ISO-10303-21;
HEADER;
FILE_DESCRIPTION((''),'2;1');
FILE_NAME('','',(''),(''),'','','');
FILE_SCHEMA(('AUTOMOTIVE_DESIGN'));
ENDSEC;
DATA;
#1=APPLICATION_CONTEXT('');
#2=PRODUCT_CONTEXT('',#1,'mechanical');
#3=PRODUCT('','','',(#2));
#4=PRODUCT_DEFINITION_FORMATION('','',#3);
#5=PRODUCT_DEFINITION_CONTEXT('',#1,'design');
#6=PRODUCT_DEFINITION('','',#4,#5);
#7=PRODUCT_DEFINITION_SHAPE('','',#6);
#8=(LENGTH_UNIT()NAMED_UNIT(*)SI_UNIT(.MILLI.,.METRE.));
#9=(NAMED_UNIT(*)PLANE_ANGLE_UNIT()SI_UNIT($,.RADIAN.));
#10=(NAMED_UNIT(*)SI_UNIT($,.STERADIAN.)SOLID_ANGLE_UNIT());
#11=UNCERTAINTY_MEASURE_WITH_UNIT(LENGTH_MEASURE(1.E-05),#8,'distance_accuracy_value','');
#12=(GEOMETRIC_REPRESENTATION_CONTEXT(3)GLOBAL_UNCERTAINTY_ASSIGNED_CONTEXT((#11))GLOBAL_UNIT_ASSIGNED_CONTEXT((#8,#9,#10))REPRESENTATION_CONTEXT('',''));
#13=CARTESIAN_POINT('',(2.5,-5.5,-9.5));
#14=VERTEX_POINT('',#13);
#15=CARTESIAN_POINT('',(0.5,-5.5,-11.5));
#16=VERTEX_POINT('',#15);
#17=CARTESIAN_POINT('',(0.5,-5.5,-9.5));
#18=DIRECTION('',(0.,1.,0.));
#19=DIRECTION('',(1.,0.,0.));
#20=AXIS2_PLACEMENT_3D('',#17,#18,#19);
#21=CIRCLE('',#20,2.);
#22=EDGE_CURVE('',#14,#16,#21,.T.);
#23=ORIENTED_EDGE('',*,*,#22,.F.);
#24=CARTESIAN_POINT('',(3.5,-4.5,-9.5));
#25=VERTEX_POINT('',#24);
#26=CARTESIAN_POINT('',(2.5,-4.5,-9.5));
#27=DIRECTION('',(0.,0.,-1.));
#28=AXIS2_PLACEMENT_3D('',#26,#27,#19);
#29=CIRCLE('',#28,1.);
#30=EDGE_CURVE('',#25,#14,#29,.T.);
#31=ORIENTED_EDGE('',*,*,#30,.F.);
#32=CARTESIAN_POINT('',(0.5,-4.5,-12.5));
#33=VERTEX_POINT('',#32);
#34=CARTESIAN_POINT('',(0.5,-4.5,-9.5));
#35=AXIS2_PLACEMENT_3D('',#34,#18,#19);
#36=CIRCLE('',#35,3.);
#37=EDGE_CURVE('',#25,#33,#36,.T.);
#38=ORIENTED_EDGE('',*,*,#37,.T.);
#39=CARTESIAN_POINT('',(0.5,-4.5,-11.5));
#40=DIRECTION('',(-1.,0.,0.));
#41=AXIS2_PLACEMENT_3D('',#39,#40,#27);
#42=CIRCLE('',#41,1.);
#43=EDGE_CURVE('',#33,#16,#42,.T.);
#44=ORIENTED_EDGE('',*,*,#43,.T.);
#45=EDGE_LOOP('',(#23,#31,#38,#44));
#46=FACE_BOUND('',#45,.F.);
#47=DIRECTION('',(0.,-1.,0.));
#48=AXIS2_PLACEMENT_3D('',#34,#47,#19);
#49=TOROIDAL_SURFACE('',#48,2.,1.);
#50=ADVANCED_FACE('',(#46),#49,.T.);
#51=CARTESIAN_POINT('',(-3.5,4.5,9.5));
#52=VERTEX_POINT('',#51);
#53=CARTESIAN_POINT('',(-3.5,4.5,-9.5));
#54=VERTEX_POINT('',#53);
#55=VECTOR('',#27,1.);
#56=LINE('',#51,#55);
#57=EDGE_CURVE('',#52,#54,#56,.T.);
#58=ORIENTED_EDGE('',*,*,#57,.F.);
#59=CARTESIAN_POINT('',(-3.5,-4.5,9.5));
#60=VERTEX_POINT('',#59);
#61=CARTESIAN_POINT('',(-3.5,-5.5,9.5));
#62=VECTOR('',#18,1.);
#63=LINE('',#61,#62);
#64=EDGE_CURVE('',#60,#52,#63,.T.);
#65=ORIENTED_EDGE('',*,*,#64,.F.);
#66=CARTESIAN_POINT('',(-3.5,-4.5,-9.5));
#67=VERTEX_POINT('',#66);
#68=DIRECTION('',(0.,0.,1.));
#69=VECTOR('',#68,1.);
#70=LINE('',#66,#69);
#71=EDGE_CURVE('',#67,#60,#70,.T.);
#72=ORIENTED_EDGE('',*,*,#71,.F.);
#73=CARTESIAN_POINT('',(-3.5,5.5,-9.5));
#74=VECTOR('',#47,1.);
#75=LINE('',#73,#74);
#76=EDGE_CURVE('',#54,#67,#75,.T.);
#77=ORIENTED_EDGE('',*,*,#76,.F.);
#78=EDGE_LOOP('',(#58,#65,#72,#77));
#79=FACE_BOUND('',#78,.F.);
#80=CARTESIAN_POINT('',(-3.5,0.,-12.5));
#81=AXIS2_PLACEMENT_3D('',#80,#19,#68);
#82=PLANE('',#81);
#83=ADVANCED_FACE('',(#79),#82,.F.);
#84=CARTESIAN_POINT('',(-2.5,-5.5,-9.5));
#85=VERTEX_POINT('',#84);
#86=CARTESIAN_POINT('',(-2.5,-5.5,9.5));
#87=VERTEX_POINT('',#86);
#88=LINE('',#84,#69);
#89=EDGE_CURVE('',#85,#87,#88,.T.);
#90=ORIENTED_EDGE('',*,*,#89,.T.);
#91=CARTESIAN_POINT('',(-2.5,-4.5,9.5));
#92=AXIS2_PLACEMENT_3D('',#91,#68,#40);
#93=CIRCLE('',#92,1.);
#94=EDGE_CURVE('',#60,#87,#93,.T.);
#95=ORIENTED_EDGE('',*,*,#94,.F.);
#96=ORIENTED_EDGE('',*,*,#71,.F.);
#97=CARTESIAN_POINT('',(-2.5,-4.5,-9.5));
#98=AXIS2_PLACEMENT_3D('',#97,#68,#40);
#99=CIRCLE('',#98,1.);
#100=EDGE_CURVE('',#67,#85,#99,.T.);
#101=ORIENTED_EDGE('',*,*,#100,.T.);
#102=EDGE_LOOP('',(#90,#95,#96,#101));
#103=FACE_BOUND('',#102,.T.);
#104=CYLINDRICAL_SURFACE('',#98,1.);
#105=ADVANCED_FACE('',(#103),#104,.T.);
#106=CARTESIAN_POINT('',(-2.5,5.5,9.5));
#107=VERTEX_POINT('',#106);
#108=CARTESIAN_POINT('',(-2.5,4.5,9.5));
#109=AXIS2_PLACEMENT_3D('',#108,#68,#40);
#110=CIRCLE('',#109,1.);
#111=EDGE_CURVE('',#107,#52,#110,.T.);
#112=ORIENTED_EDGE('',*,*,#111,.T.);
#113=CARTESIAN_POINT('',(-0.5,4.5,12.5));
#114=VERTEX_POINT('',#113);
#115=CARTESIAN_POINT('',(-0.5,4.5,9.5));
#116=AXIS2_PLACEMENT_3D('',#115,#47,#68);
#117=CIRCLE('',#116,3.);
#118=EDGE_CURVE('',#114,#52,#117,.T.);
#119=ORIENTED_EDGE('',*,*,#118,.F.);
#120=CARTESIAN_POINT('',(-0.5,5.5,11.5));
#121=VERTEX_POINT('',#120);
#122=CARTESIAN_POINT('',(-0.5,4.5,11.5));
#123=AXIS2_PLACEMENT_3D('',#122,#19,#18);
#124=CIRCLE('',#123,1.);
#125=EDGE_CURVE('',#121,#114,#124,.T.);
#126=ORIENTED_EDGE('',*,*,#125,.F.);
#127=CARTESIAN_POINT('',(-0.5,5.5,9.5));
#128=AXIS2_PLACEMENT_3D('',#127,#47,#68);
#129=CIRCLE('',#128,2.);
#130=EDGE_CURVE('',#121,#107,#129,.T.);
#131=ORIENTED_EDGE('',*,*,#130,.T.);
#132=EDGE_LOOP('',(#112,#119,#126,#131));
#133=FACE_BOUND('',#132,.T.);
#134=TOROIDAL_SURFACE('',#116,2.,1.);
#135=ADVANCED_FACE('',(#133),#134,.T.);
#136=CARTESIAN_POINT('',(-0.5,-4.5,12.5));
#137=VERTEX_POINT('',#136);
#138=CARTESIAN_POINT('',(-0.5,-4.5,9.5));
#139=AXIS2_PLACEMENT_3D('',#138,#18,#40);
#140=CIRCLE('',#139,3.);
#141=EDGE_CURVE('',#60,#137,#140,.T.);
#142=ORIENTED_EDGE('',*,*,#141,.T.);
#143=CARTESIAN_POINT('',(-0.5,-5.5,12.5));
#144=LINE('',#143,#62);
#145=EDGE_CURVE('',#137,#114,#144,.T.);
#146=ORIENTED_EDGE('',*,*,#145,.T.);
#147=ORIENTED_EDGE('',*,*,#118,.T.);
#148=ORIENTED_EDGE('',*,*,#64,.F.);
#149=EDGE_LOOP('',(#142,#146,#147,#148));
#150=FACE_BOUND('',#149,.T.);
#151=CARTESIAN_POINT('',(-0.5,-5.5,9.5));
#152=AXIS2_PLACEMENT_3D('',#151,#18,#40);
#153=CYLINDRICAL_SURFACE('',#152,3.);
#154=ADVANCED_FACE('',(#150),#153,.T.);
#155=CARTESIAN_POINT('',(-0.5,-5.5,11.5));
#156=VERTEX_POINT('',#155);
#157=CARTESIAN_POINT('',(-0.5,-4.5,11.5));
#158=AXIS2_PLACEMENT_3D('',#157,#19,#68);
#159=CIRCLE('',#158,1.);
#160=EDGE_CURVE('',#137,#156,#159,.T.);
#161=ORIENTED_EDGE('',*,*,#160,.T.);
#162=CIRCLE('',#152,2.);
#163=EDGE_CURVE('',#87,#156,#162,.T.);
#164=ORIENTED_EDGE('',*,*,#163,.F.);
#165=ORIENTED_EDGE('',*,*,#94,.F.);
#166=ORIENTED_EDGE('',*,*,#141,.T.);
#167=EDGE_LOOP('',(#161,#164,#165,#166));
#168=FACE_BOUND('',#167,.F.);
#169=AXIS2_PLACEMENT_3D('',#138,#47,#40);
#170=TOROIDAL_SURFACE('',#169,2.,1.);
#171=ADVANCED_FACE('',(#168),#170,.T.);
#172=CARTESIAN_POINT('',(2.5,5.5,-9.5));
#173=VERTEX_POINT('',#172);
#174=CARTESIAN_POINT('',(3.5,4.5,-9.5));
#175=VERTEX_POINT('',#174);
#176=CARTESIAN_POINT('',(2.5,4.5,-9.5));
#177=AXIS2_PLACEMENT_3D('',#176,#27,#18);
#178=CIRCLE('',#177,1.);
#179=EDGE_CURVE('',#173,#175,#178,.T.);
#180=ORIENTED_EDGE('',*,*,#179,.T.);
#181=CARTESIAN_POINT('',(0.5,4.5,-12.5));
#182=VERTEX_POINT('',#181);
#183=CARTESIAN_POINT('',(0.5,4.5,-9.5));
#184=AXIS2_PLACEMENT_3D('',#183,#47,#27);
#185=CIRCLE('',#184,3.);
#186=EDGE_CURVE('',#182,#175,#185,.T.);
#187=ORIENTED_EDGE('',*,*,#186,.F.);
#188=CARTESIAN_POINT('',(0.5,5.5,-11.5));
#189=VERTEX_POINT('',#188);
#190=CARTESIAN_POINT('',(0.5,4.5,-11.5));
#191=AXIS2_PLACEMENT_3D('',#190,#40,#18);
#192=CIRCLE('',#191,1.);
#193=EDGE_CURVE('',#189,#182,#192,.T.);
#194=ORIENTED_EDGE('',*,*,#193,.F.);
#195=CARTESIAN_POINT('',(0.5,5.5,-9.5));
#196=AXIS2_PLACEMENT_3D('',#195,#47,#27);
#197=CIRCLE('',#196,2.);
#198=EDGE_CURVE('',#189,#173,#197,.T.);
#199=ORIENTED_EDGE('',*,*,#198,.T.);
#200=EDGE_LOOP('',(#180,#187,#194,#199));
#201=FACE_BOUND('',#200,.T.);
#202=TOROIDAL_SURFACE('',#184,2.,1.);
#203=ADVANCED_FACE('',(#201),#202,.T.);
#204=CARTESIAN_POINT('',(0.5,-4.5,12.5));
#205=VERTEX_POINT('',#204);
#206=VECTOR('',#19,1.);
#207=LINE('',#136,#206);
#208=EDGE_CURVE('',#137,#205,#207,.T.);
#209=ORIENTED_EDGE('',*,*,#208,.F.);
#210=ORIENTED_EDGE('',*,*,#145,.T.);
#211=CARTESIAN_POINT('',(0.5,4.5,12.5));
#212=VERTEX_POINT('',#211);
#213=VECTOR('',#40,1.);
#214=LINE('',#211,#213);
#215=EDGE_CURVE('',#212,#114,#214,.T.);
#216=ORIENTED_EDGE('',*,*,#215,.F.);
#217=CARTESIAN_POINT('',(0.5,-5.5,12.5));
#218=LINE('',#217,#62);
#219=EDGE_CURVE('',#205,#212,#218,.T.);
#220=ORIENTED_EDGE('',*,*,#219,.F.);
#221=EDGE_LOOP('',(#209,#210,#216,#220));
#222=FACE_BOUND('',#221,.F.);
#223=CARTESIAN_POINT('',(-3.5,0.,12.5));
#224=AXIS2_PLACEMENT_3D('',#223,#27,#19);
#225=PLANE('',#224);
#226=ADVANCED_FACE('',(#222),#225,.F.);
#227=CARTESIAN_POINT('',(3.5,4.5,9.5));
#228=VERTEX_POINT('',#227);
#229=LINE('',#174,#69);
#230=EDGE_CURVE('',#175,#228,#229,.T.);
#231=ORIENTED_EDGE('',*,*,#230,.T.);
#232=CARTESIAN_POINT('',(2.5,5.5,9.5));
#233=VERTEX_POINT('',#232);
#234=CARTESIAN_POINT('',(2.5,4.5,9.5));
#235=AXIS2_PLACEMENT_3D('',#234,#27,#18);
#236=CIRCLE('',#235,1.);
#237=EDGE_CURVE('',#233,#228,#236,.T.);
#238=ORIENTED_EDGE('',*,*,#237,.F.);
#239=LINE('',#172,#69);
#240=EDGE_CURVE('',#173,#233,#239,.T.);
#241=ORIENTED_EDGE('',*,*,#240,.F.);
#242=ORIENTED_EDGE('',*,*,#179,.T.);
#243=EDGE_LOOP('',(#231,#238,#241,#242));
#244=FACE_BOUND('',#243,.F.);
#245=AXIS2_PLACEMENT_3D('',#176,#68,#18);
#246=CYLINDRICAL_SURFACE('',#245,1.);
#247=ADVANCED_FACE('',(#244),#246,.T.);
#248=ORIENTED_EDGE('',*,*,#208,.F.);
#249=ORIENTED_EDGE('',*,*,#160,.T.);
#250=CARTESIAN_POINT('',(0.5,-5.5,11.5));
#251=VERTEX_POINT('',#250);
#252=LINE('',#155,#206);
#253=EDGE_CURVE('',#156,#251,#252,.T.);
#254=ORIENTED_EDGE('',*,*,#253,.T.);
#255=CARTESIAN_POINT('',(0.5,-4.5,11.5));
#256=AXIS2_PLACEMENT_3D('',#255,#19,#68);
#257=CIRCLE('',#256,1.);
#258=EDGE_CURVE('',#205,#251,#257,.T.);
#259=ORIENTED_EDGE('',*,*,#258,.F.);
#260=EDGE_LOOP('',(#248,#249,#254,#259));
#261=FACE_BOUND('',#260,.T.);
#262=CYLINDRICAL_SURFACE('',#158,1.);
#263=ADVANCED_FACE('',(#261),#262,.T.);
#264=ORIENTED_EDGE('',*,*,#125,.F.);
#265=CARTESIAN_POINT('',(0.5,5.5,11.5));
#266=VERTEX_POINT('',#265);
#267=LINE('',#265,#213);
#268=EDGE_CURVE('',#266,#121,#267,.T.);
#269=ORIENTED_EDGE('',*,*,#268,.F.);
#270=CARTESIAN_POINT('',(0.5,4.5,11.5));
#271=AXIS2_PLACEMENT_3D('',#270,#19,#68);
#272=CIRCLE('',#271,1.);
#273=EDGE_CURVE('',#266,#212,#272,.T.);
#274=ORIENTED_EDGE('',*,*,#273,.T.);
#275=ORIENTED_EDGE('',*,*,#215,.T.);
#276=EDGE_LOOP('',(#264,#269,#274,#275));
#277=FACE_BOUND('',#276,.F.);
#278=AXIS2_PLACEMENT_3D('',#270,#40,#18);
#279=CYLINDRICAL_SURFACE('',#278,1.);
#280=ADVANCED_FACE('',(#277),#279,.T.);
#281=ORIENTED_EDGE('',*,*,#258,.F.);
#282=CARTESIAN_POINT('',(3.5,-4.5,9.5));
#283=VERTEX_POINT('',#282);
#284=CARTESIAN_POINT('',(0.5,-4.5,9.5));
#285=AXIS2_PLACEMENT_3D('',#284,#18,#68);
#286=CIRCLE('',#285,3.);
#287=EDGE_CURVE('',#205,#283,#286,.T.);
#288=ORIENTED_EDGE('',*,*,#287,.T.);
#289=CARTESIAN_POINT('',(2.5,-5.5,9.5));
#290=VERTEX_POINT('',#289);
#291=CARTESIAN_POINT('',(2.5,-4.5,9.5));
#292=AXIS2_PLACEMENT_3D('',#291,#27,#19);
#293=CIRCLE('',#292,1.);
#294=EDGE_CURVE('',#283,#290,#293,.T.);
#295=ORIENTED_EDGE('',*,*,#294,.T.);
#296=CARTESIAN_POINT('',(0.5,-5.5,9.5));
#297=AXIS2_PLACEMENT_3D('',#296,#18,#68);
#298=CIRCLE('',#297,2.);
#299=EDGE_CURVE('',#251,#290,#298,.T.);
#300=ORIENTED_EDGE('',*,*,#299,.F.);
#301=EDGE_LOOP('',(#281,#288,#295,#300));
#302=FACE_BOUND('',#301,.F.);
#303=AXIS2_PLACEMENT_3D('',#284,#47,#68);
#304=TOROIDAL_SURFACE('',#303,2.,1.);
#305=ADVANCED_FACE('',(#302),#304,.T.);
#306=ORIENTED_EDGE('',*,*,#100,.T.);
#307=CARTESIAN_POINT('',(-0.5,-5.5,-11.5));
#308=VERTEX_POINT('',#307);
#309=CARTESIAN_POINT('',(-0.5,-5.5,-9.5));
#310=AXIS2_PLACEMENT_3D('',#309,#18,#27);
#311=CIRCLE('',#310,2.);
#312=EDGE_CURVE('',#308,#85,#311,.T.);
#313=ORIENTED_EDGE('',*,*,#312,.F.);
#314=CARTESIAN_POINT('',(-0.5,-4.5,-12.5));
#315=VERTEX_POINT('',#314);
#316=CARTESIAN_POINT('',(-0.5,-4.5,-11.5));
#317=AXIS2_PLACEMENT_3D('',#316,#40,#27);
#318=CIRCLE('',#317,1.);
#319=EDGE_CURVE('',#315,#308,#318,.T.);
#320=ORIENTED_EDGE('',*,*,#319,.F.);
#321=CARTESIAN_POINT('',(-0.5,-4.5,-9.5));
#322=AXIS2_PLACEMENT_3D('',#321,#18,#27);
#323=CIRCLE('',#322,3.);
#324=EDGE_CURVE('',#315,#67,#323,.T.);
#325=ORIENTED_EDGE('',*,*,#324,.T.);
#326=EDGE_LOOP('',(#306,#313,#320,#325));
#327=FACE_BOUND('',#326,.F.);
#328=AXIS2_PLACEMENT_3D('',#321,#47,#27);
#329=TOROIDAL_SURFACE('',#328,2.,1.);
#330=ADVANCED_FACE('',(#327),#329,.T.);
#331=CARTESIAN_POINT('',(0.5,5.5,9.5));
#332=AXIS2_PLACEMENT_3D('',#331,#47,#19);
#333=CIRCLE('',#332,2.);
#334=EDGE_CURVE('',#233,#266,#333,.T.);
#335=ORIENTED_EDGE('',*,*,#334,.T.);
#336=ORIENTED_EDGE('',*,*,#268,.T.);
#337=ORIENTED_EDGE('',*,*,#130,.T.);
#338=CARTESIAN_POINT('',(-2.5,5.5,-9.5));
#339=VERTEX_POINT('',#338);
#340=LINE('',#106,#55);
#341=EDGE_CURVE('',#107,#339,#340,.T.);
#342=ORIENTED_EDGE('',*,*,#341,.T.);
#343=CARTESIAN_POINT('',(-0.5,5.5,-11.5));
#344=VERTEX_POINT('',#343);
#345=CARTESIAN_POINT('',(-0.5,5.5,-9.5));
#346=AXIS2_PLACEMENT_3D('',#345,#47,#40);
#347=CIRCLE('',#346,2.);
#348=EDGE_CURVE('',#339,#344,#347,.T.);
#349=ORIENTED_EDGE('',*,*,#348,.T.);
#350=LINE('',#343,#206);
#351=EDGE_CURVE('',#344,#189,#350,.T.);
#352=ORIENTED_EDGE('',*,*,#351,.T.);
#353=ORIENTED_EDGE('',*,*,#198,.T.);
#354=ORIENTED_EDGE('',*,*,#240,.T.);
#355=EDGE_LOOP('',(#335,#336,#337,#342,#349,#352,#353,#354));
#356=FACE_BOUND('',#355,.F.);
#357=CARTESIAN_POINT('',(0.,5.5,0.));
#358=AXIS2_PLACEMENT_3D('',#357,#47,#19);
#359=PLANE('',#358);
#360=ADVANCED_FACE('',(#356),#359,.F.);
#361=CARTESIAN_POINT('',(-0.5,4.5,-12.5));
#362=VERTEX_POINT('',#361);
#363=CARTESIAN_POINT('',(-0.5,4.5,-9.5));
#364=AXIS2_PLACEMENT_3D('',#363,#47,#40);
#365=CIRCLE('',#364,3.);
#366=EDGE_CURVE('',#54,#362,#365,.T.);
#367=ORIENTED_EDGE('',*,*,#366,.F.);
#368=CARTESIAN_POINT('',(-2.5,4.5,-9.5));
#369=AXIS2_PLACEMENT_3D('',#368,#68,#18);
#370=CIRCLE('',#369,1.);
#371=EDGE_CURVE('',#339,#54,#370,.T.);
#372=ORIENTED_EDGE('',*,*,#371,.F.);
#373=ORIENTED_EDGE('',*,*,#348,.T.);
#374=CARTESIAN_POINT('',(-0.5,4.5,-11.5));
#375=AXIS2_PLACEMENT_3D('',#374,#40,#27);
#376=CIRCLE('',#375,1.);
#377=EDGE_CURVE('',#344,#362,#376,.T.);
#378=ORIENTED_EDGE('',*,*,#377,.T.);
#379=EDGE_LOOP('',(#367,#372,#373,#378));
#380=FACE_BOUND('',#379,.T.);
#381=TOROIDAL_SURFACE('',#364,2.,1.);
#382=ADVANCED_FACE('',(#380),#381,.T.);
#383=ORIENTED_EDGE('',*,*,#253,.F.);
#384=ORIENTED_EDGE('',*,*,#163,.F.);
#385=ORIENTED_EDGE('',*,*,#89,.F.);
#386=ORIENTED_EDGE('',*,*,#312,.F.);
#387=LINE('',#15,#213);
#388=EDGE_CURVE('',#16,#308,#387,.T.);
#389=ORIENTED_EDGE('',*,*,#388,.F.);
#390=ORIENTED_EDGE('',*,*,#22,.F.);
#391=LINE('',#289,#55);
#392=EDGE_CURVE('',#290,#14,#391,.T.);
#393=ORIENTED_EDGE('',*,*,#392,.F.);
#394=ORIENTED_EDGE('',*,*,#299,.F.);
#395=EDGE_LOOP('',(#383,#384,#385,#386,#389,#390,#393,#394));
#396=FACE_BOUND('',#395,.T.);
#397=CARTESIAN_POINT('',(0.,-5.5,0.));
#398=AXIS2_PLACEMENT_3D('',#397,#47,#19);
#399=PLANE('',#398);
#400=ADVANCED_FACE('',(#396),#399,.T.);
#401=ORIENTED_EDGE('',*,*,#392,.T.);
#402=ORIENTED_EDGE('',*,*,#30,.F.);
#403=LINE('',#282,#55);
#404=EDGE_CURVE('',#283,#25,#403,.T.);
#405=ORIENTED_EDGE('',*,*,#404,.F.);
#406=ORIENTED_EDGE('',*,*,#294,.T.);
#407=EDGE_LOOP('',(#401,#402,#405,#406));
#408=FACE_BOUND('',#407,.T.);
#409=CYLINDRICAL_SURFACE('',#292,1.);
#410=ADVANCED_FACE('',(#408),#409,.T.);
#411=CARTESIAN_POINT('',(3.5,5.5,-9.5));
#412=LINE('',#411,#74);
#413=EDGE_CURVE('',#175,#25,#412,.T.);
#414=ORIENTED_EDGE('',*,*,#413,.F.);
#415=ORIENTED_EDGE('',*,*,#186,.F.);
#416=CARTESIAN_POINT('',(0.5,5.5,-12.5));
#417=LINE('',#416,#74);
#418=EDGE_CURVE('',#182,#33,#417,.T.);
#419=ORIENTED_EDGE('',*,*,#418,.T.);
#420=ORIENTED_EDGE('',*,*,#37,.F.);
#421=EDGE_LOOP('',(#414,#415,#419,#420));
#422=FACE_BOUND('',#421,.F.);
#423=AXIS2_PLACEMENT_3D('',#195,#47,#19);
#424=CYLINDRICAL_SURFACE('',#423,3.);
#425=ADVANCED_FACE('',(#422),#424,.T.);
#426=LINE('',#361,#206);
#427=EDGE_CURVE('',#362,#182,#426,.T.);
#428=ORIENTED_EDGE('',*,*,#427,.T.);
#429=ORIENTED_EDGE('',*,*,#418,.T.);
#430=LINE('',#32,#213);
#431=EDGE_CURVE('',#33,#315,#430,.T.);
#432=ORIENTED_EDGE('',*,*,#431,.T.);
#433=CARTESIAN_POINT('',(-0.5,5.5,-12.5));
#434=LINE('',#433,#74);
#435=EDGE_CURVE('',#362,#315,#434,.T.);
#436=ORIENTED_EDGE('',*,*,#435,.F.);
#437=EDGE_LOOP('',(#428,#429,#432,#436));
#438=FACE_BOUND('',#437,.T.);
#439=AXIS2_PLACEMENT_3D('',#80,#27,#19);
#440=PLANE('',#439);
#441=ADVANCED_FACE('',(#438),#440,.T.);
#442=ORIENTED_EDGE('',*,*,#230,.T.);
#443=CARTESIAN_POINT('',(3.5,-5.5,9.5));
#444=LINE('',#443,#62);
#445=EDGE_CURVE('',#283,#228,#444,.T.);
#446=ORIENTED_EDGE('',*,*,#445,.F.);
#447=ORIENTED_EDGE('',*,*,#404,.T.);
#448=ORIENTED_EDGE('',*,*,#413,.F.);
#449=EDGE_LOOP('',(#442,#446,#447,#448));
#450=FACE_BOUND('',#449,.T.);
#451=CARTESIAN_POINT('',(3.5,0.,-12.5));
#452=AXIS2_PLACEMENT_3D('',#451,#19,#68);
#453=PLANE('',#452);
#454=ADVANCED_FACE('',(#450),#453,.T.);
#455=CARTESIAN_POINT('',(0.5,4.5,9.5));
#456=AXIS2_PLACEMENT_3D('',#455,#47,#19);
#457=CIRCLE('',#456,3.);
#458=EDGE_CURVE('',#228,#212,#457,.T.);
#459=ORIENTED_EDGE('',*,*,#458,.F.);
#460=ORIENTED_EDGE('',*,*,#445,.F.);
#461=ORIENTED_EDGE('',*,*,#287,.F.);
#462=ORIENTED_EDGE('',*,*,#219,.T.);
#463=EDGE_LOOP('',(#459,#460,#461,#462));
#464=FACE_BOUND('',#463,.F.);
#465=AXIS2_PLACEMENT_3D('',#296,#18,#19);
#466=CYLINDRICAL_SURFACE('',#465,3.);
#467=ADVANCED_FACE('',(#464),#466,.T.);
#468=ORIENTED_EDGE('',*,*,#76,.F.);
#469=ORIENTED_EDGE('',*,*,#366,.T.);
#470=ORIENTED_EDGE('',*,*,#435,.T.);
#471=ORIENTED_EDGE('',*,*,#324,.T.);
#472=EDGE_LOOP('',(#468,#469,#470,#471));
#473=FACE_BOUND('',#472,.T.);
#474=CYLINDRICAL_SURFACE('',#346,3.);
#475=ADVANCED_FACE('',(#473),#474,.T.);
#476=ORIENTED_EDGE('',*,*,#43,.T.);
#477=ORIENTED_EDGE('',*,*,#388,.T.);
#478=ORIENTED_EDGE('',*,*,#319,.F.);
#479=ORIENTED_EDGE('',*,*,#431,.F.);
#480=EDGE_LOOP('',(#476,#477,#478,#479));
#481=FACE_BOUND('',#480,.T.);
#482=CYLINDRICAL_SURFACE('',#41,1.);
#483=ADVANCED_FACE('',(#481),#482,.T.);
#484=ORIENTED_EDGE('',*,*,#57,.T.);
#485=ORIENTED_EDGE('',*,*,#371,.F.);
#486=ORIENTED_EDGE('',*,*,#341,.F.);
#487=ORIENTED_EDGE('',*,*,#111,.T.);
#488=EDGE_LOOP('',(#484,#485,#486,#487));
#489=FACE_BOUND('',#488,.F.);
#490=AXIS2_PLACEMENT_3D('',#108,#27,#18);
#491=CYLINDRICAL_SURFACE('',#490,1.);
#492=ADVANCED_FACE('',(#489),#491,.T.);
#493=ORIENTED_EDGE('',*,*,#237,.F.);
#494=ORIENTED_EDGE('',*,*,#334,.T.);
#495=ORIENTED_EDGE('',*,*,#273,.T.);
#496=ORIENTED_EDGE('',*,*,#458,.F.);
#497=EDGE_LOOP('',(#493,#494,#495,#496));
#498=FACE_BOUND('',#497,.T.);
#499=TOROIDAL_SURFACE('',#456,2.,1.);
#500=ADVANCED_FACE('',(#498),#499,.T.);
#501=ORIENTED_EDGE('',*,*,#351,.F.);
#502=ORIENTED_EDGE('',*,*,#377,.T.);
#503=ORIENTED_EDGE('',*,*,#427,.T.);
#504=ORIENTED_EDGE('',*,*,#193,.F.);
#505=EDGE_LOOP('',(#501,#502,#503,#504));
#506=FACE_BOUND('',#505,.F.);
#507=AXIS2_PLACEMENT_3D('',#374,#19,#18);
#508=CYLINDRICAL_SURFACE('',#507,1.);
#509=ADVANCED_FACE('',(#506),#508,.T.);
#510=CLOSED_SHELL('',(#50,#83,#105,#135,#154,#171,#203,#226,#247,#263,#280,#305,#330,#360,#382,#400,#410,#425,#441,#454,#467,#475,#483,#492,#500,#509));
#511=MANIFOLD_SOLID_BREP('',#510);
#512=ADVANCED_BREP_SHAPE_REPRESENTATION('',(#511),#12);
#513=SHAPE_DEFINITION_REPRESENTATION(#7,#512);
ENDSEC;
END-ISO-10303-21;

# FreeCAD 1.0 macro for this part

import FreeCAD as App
import Part
import Sketcher
from FreeCAD import Vector
Q = App.Units.Quantity


def edges_at(feature, points):
    """Names of the edges that pass closest to the given points."""
    edges = feature.Shape.Edges
    near = lambda p: min(range(len(edges)), key=lambda i: edges[i].distToShape(Part.Vertex(*p))[0])
    return sorted({f"Edge{near(p) + 1}" for p in points})


def add_polygon(sketch, points):
    """Adds a closed chain of lines whose ends are joined by coincident constraints."""
    first, n = sketch.GeometryCount, len(points)
    for a, b in zip(points, points[1:] + points[:1]):
        sketch.addGeometry(Part.LineSegment(App.Vector(*a, 0), App.Vector(*b, 0)), False)
    for i in range(n):
        sketch.addConstraint(Sketcher.Constraint("Coincident", first + i, 2, first + (i + 1) % n, 1))

doc = App.newDocument("Part")
body = doc.addObject("PartDesign::Body", "Body")

sketch1 = body.newObject("Sketcher::SketchObject", "Sketch")
sketch1.AttachmentSupport = (doc.getObject("XZ_Plane"), [""])
sketch1.MapMode = "FlatFace"
add_polygon(sketch1, [(-4, 12), (-4, -12), (4, -12), (4, 12)])
sketch1.addConstraint(Sketcher.Constraint("Vertical", 0))
sketch1.addConstraint(Sketcher.Constraint("Horizontal", 1))
sketch1.addConstraint(Sketcher.Constraint("Vertical", 2))
sketch1.addConstraint(Sketcher.Constraint("Horizontal", 3))
sketch1.addConstraint(Sketcher.Constraint("Symmetric", 0, 2, 2, 2, -1, 1))
sketch1.addConstraint(Sketcher.Constraint("DistanceX", 1, 1, 1, 2, Q("7 mm")))
sketch1.addConstraint(Sketcher.Constraint("DistanceY", 0, 2, 0, 1, Q("25 mm")))
pad1 = body.newObject("PartDesign::Pad", "Pad")
pad1.Profile = sketch1
pad1.Length = 11
pad1.Midplane = True
doc.recompute()

fillet = body.newObject("PartDesign::Fillet", "Fillet")
fillet.Base = (pad1, edges_at(pad1, [
    (3.5, 0, 12.5),
    (-3.5, 0, 12.5),
    (3.5, 0, -12.5),
    (-3.5, 0, -12.5),
]))
fillet.Radius = 3
doc.recompute()

fillet2 = body.newObject("PartDesign::Fillet", "Fillet001")
fillet2.Base = (fillet, edges_at(fillet, [
    (-3.5, -5.5, 0),
    (3.5, -5.5, 0),
    (-2.621, -5.5, -11.621),
    (2.621, -5.5, 11.621),
    (0, -5.5, -12.5),
    (-2.621, -5.5, 11.621),
    (0, -5.5, 12.5),
    (3.5, 5.5, 0),
    (-3.5, 5.5, 0),
    (0, 5.5, -12.5),
    (-2.621, 5.5, -11.621),
    (2.621, 5.5, -11.621),
    (-2.621, 5.5, 11.621),
    (2.621, 5.5, 11.621),
    (0, 5.5, 12.5),
]))
fillet2.Radius = 1

doc.recompute()
